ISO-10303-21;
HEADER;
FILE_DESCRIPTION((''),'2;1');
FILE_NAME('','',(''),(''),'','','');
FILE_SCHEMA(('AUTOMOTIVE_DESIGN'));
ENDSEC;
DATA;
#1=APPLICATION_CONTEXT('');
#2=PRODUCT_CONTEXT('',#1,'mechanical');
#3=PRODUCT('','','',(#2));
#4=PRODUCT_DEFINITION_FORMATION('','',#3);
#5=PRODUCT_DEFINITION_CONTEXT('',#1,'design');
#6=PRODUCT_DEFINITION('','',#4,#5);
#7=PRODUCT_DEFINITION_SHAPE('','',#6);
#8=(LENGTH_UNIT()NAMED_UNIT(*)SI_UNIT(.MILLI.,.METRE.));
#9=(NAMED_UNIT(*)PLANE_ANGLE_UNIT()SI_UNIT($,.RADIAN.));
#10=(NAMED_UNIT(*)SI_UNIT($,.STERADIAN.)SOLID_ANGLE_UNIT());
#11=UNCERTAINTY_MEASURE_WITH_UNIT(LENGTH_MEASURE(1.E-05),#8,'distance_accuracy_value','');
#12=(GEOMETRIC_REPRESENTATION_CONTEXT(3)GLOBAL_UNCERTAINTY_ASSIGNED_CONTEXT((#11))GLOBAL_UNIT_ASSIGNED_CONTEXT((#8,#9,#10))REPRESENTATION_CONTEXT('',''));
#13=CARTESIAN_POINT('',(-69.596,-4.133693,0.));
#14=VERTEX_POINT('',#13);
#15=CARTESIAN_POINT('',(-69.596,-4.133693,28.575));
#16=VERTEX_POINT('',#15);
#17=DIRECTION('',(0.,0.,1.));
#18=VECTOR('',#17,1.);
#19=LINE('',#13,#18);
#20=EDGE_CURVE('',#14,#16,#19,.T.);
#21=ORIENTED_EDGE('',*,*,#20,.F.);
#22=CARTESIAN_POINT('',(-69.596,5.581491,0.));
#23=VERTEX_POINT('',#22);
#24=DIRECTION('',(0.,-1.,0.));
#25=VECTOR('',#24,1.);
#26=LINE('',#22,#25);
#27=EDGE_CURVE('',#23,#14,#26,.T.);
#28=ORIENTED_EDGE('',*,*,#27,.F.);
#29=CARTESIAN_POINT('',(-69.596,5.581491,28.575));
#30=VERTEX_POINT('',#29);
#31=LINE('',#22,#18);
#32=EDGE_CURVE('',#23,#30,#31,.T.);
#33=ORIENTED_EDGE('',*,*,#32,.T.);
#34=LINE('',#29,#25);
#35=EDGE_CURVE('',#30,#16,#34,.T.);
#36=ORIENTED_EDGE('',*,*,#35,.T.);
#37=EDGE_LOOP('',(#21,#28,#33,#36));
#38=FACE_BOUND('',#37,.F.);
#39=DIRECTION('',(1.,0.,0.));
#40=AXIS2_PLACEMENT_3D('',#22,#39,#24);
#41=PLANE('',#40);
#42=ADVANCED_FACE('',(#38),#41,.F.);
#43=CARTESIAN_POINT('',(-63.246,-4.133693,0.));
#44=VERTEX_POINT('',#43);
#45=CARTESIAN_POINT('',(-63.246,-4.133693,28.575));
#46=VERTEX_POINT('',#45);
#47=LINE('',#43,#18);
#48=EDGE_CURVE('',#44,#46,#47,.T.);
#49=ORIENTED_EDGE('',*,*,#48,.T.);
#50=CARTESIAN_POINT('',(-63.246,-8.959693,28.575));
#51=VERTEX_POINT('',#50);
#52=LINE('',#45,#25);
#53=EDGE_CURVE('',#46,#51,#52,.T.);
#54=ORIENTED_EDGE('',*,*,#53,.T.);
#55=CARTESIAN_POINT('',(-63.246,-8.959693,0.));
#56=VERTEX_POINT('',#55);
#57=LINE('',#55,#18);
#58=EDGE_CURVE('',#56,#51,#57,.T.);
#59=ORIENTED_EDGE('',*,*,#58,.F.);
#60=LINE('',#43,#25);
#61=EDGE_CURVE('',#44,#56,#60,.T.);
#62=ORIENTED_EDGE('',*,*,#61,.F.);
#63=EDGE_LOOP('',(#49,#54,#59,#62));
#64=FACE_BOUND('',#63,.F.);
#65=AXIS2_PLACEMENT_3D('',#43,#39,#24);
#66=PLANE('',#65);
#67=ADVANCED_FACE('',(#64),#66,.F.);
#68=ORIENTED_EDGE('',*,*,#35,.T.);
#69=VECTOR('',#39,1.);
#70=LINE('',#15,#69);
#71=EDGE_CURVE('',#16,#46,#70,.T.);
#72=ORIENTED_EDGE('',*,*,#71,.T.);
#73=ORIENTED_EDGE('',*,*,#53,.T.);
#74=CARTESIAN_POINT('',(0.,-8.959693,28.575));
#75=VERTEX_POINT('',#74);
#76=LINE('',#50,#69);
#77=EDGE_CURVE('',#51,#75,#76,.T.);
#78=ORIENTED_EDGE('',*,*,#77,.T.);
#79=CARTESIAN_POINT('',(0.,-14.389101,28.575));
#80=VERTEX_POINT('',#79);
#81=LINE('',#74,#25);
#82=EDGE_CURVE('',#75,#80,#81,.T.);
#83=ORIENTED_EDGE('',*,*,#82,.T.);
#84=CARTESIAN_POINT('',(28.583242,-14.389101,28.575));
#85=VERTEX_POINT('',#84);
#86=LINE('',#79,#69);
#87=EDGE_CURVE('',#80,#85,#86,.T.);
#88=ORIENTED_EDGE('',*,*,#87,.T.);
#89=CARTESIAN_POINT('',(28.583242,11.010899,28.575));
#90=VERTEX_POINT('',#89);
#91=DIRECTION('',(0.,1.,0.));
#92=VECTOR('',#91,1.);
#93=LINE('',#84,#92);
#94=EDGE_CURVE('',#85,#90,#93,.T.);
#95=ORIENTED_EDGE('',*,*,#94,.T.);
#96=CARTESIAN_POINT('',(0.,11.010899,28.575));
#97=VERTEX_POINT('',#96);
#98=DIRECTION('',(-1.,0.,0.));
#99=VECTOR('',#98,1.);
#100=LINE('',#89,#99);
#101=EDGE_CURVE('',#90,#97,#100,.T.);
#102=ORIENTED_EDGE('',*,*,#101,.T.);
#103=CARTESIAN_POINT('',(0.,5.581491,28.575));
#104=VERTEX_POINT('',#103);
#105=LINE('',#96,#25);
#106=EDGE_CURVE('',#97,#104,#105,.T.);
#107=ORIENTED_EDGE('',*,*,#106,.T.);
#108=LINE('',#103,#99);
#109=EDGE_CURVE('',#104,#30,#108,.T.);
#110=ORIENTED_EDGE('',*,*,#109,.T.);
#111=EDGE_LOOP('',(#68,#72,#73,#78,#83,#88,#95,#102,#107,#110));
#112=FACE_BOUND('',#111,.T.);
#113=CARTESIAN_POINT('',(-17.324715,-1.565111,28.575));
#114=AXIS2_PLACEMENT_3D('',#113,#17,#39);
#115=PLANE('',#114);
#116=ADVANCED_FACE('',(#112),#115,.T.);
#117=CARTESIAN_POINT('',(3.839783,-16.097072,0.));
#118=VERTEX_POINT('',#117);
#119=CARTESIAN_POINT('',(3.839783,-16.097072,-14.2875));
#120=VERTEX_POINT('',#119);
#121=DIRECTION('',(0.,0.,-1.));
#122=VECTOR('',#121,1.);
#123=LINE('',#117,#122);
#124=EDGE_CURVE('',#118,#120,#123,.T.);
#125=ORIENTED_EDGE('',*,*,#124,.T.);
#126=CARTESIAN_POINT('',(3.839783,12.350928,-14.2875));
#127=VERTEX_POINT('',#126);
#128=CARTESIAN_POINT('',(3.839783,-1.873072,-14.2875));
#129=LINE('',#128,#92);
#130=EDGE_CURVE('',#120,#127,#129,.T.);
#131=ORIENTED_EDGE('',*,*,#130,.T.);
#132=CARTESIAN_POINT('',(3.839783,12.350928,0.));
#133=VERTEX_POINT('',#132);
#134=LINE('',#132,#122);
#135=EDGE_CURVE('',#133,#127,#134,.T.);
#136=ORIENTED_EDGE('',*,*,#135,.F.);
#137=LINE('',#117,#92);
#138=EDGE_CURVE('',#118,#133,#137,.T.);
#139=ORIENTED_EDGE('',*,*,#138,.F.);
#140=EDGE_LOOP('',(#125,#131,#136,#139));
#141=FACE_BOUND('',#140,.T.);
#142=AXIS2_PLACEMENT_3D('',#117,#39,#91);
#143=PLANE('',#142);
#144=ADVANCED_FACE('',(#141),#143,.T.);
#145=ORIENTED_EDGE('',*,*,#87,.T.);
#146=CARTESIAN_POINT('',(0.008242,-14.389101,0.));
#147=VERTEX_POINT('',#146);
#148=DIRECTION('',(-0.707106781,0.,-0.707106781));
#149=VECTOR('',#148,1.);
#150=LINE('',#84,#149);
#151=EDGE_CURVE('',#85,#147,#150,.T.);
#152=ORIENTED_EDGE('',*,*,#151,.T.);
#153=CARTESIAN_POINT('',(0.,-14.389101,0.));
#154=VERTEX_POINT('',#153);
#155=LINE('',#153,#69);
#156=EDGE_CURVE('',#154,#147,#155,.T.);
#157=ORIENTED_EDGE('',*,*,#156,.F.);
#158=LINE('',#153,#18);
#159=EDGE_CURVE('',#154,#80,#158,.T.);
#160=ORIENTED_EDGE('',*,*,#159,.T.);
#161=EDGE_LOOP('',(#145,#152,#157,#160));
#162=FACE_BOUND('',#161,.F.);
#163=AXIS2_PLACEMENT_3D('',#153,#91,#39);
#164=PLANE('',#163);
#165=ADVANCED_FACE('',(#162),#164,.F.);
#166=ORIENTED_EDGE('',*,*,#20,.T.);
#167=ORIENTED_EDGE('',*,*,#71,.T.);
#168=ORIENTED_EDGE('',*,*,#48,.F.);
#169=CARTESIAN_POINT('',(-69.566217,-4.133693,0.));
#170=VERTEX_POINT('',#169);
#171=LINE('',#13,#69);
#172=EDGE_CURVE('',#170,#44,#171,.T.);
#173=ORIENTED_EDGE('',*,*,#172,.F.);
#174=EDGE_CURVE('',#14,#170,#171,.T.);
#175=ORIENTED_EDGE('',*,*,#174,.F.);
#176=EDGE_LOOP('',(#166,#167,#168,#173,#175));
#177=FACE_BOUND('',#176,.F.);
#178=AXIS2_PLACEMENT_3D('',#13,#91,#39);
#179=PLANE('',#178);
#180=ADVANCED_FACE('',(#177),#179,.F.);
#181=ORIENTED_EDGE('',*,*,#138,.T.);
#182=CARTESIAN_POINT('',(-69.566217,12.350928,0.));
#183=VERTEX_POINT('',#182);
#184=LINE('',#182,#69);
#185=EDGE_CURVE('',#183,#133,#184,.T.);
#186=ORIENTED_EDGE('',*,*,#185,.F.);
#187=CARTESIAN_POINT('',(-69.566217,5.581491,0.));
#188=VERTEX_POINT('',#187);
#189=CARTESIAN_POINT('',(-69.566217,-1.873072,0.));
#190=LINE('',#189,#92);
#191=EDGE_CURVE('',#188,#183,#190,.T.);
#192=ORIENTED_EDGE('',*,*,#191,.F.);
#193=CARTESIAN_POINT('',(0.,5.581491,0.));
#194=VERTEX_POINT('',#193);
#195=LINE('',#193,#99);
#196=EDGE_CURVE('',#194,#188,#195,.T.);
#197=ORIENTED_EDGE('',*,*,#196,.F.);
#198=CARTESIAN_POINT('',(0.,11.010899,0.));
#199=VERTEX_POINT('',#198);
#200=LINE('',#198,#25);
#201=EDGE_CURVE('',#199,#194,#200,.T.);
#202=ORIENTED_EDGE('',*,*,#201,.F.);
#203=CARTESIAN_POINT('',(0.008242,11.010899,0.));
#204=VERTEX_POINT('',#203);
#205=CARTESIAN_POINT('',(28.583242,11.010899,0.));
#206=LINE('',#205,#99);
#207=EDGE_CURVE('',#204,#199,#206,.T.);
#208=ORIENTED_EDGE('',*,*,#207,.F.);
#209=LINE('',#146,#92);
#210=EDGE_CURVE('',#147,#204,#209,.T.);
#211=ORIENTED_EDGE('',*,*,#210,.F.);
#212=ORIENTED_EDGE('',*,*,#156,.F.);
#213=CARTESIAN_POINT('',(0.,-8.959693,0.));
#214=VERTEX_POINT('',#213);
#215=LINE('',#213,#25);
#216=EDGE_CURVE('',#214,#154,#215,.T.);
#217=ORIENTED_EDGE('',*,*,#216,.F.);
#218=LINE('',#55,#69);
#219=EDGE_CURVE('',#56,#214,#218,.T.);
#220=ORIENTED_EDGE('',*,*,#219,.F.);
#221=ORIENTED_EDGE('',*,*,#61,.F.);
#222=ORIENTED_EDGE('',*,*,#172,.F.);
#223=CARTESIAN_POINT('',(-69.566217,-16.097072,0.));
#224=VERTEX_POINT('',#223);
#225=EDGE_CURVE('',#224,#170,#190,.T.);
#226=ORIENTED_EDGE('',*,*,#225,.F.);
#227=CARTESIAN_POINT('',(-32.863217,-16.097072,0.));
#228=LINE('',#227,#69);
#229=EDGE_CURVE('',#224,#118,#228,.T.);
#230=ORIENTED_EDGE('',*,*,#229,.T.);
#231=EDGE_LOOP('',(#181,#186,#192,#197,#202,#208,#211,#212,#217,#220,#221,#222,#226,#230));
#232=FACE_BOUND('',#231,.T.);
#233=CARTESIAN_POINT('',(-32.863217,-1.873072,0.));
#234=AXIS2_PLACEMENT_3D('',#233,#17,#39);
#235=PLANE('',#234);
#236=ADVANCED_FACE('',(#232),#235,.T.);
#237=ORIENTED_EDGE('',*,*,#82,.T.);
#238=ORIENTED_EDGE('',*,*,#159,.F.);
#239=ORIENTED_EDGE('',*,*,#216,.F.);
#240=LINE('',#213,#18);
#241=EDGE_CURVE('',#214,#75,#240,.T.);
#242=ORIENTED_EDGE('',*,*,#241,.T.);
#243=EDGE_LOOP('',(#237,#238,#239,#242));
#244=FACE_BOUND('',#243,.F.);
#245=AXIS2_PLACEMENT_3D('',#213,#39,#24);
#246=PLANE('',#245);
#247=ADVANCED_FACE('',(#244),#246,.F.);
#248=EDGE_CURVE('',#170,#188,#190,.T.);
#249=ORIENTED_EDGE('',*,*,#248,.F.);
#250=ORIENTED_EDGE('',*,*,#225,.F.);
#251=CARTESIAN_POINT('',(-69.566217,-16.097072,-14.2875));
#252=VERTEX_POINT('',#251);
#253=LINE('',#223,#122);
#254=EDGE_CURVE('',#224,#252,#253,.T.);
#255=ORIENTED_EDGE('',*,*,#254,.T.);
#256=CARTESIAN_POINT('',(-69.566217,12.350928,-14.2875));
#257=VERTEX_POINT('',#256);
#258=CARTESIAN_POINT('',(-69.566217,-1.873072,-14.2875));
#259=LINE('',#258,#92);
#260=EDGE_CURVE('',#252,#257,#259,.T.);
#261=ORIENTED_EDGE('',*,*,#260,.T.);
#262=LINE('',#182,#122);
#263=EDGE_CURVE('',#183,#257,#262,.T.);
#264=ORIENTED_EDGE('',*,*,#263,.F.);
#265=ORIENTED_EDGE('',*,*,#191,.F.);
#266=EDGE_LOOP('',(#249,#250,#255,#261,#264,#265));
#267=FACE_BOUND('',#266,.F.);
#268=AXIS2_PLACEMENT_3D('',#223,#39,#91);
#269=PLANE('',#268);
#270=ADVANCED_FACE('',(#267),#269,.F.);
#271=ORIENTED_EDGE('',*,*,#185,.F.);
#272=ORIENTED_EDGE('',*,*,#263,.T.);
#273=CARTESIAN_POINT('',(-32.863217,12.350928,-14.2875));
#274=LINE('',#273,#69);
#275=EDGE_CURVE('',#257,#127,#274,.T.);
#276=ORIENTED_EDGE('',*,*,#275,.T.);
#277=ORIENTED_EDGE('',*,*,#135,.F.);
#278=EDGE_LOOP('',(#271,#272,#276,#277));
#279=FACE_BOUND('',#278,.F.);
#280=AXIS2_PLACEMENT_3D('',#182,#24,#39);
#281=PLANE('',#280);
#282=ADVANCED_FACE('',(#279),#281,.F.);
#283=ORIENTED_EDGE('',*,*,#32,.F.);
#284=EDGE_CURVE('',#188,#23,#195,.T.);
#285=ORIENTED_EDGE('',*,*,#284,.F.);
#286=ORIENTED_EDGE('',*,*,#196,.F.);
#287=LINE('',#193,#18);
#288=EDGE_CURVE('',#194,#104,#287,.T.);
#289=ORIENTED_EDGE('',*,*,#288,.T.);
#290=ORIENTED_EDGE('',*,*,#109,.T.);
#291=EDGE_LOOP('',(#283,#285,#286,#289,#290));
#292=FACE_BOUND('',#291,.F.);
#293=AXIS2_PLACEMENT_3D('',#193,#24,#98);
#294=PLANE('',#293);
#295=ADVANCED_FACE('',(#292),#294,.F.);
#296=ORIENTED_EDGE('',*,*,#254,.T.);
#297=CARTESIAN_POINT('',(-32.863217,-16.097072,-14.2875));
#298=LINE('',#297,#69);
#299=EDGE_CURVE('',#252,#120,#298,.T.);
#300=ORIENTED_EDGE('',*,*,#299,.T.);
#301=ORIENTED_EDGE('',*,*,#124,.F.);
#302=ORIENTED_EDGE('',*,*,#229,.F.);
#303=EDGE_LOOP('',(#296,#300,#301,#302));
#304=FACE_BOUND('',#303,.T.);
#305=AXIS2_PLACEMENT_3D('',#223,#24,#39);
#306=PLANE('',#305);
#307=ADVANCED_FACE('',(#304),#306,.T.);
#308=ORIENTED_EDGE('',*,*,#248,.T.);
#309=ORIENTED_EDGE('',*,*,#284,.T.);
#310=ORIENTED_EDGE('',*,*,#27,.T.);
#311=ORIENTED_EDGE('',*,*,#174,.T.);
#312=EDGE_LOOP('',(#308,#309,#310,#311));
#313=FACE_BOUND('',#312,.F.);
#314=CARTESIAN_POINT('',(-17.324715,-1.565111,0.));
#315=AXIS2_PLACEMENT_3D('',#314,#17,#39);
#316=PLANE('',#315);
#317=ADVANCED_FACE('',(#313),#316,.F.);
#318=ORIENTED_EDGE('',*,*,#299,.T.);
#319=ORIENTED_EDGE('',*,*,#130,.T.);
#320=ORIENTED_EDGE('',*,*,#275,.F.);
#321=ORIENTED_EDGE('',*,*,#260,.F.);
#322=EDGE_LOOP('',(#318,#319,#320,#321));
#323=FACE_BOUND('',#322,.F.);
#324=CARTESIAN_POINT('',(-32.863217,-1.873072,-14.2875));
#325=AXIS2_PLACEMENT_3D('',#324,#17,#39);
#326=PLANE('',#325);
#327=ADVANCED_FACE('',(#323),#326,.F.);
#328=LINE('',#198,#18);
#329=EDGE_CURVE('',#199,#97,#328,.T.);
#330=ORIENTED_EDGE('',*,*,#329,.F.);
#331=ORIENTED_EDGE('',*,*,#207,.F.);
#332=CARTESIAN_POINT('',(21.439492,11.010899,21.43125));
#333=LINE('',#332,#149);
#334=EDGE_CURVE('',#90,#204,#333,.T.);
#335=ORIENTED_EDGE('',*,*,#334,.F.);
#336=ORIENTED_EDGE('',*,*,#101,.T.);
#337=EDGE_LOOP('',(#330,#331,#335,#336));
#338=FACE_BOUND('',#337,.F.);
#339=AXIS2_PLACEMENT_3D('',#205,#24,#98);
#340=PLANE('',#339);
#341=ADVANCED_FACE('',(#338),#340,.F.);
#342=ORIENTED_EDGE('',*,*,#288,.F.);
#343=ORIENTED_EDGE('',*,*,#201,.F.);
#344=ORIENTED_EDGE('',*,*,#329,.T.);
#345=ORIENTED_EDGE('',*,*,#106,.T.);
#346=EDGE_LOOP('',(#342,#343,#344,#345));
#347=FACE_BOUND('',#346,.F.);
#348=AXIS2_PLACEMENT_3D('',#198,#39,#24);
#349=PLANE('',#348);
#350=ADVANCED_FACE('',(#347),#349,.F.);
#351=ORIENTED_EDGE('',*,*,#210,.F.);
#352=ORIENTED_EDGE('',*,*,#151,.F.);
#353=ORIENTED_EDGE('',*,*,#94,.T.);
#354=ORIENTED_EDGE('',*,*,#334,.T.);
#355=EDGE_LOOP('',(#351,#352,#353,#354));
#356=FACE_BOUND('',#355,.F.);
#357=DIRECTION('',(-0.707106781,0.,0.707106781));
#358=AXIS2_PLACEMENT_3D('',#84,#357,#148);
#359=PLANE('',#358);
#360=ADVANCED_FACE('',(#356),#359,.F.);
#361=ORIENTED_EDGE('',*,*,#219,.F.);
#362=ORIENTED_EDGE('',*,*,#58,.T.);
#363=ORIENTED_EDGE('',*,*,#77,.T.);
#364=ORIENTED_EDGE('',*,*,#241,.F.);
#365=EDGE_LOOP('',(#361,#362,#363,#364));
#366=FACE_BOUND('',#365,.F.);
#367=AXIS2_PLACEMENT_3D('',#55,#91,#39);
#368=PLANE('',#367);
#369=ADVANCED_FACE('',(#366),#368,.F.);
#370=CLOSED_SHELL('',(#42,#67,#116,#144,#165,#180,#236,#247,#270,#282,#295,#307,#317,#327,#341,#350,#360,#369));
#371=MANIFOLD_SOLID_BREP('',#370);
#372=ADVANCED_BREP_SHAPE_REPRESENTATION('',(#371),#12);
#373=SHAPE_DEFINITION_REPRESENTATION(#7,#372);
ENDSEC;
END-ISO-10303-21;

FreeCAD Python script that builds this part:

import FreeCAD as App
import Part
import Sketcher

V = App.Vector
Q = App.Units.Quantity


def add_polygon(sketch, points):
    """Adds a closed chain of lines whose ends are joined by coincident constraints."""
    first, n = sketch.GeometryCount, len(points)
    for a, b in zip(points, points[1:] + points[:1]):
        sketch.addGeometry(Part.LineSegment(App.Vector(*a, 0), App.Vector(*b, 0)), False)
    for i in range(n):
        sketch.addConstraint(Sketcher.Constraint("Coincident", first + i, 2, first + (i + 1) % n, 1))

doc = App.newDocument("Part")
body = doc.addObject("PartDesign::Body", "Body")

# Sketch on XY plane
sketch1 = body.newObject("Sketcher::SketchObject", "Sketch")
sketch1.AttachmentSupport = (doc.getObject("XY_Plane"), [""])
sketch1.MapMode = "FlatFace"
add_polygon(sketch1, [(0, -14.4), (28.6, -14.4), (28.6, 11), (0, 11), (0, 5.6), (-69.6, 5.6), (-69.6, -4.1), (-63.2, -4.1), (-63.2, -9), (0, -9)])  # lines 0-9
sketch1.addConstraint(Sketcher.Constraint("Horizontal", 0))
sketch1.addConstraint(Sketcher.Constraint("Vertical", 1))
sketch1.addConstraint(Sketcher.Constraint("Horizontal", 2))
sketch1.addConstraint(Sketcher.Constraint("Vertical", 3))
sketch1.addConstraint(Sketcher.Constraint("Horizontal", 4))
sketch1.addConstraint(Sketcher.Constraint("Vertical", 5))
sketch1.addConstraint(Sketcher.Constraint("Horizontal", 6))
sketch1.addConstraint(Sketcher.Constraint("Vertical", 7))
sketch1.addConstraint(Sketcher.Constraint("Horizontal", 8))
sketch1.addConstraint(Sketcher.Constraint("Vertical", 9))
sketch1.addConstraint(Sketcher.Constraint("PointOnObject", 2, 2, -2))
sketch1.addConstraint(Sketcher.Constraint("PointOnObject", 8, 2, -2))
sketch1.addConstraint(Sketcher.Constraint("Equal", 3, 9))
sketch1.addConstraint(Sketcher.Constraint("DistanceY", 1, 1, 1, 2, Q("1 in")))
sketch1.addConstraint(Sketcher.Constraint("DistanceX", 4, 2, 4, 1, Q("2.74 in")))
sketch1.addConstraint(Sketcher.Constraint("DistanceX", 6, 1, 6, 2, Q("0.25 in")))
sketch1.addConstraint(Sketcher.Constraint("DistanceY", 7, 2, 7, 1, Q("0.19 in")))
sketch1.addConstraint(Sketcher.Constraint("DistanceY", 0, 2, -1, 1, Q("0.5665 in")))
sketch1.addConstraint(Sketcher.Constraint("DistanceX", 0, 1, 0, 2, Q("28.583242 mm")))
sketch1.addConstraint(Sketcher.Constraint("DistanceY", 3, 2, 3, 1, Q("5.429408 mm")))
pad1 = body.newObject("PartDesign::Pad", "Pad")
pad1.Profile = sketch1
pad1.Length = Q("1.125 in")

# Sketch on XY plane
sketch2 = body.newObject("Sketcher::SketchObject", "Sketch001")
sketch2.AttachmentSupport = (doc.getObject("XY_Plane"), [""])
sketch2.MapMode = "FlatFace"
add_polygon(sketch2, [(-70, 12), (-70, -16), (4, -16), (4, 12)])  # lines 0-3
sketch2.addConstraint(Sketcher.Constraint("Vertical", 0))
sketch2.addConstraint(Sketcher.Constraint("Horizontal", 1))
sketch2.addConstraint(Sketcher.Constraint("Vertical", 2))
sketch2.addConstraint(Sketcher.Constraint("Horizontal", 3))
sketch2.addConstraint(Sketcher.Constraint("DistanceX", 1, 1, 1, 2, Q("2.89 in")))
sketch2.addConstraint(Sketcher.Constraint("DistanceY", 0, 2, 0, 1, Q("1.12 in")))
sketch2.addConstraint(Sketcher.Constraint("DistanceX", 0, 2, -1, 1, Q("69.566217 mm")))
sketch2.addConstraint(Sketcher.Constraint("DistanceY", 0, 2, -1, 1, Q("16.097072 mm")))
pad2 = body.newObject("PartDesign::Pad", "Pad001")
pad2.Profile = sketch2
pad2.Length = Q("0.5625 in")
pad2.Reversed = True

# Sketch on XZ plane
sketch3 = body.newObject("Sketcher::SketchObject", "Sketch002")
sketch3.AttachmentSupport = (doc.getObject("XZ_Plane"), [""])
sketch3.MapMode = "FlatFace"
sketch3.AttachmentOffset = App.Placement(V(0, 0, 0.5665 * 25.4), App.Rotation())
add_polygon(sketch3, [(29, 0), (29, 29), (0, 0)])  # lines 0-2
sketch3.addConstraint(Sketcher.Constraint("Vertical", 0))
sketch3.addConstraint(Sketcher.Constraint("Horizontal", 2))
sketch3.addConstraint(Sketcher.Constraint("PointOnObject", 1, 2, -1))
sketch3.addConstraint(Sketcher.Constraint("Equal", 2, 0))
sketch3.addConstraint(Sketcher.Constraint("DistanceX", 2, 1, 2, 2, Q("1.125 in")))
sketch3.addConstraint(Sketcher.Constraint("DistanceX", -1, 1, 0, 2, Q("28.583242 mm")))
pocket1 = body.newObject("PartDesign::Pocket", "Pocket")
pocket1.Profile = sketch3
pocket1.Type = "ThroughAll"

doc.recompute()
